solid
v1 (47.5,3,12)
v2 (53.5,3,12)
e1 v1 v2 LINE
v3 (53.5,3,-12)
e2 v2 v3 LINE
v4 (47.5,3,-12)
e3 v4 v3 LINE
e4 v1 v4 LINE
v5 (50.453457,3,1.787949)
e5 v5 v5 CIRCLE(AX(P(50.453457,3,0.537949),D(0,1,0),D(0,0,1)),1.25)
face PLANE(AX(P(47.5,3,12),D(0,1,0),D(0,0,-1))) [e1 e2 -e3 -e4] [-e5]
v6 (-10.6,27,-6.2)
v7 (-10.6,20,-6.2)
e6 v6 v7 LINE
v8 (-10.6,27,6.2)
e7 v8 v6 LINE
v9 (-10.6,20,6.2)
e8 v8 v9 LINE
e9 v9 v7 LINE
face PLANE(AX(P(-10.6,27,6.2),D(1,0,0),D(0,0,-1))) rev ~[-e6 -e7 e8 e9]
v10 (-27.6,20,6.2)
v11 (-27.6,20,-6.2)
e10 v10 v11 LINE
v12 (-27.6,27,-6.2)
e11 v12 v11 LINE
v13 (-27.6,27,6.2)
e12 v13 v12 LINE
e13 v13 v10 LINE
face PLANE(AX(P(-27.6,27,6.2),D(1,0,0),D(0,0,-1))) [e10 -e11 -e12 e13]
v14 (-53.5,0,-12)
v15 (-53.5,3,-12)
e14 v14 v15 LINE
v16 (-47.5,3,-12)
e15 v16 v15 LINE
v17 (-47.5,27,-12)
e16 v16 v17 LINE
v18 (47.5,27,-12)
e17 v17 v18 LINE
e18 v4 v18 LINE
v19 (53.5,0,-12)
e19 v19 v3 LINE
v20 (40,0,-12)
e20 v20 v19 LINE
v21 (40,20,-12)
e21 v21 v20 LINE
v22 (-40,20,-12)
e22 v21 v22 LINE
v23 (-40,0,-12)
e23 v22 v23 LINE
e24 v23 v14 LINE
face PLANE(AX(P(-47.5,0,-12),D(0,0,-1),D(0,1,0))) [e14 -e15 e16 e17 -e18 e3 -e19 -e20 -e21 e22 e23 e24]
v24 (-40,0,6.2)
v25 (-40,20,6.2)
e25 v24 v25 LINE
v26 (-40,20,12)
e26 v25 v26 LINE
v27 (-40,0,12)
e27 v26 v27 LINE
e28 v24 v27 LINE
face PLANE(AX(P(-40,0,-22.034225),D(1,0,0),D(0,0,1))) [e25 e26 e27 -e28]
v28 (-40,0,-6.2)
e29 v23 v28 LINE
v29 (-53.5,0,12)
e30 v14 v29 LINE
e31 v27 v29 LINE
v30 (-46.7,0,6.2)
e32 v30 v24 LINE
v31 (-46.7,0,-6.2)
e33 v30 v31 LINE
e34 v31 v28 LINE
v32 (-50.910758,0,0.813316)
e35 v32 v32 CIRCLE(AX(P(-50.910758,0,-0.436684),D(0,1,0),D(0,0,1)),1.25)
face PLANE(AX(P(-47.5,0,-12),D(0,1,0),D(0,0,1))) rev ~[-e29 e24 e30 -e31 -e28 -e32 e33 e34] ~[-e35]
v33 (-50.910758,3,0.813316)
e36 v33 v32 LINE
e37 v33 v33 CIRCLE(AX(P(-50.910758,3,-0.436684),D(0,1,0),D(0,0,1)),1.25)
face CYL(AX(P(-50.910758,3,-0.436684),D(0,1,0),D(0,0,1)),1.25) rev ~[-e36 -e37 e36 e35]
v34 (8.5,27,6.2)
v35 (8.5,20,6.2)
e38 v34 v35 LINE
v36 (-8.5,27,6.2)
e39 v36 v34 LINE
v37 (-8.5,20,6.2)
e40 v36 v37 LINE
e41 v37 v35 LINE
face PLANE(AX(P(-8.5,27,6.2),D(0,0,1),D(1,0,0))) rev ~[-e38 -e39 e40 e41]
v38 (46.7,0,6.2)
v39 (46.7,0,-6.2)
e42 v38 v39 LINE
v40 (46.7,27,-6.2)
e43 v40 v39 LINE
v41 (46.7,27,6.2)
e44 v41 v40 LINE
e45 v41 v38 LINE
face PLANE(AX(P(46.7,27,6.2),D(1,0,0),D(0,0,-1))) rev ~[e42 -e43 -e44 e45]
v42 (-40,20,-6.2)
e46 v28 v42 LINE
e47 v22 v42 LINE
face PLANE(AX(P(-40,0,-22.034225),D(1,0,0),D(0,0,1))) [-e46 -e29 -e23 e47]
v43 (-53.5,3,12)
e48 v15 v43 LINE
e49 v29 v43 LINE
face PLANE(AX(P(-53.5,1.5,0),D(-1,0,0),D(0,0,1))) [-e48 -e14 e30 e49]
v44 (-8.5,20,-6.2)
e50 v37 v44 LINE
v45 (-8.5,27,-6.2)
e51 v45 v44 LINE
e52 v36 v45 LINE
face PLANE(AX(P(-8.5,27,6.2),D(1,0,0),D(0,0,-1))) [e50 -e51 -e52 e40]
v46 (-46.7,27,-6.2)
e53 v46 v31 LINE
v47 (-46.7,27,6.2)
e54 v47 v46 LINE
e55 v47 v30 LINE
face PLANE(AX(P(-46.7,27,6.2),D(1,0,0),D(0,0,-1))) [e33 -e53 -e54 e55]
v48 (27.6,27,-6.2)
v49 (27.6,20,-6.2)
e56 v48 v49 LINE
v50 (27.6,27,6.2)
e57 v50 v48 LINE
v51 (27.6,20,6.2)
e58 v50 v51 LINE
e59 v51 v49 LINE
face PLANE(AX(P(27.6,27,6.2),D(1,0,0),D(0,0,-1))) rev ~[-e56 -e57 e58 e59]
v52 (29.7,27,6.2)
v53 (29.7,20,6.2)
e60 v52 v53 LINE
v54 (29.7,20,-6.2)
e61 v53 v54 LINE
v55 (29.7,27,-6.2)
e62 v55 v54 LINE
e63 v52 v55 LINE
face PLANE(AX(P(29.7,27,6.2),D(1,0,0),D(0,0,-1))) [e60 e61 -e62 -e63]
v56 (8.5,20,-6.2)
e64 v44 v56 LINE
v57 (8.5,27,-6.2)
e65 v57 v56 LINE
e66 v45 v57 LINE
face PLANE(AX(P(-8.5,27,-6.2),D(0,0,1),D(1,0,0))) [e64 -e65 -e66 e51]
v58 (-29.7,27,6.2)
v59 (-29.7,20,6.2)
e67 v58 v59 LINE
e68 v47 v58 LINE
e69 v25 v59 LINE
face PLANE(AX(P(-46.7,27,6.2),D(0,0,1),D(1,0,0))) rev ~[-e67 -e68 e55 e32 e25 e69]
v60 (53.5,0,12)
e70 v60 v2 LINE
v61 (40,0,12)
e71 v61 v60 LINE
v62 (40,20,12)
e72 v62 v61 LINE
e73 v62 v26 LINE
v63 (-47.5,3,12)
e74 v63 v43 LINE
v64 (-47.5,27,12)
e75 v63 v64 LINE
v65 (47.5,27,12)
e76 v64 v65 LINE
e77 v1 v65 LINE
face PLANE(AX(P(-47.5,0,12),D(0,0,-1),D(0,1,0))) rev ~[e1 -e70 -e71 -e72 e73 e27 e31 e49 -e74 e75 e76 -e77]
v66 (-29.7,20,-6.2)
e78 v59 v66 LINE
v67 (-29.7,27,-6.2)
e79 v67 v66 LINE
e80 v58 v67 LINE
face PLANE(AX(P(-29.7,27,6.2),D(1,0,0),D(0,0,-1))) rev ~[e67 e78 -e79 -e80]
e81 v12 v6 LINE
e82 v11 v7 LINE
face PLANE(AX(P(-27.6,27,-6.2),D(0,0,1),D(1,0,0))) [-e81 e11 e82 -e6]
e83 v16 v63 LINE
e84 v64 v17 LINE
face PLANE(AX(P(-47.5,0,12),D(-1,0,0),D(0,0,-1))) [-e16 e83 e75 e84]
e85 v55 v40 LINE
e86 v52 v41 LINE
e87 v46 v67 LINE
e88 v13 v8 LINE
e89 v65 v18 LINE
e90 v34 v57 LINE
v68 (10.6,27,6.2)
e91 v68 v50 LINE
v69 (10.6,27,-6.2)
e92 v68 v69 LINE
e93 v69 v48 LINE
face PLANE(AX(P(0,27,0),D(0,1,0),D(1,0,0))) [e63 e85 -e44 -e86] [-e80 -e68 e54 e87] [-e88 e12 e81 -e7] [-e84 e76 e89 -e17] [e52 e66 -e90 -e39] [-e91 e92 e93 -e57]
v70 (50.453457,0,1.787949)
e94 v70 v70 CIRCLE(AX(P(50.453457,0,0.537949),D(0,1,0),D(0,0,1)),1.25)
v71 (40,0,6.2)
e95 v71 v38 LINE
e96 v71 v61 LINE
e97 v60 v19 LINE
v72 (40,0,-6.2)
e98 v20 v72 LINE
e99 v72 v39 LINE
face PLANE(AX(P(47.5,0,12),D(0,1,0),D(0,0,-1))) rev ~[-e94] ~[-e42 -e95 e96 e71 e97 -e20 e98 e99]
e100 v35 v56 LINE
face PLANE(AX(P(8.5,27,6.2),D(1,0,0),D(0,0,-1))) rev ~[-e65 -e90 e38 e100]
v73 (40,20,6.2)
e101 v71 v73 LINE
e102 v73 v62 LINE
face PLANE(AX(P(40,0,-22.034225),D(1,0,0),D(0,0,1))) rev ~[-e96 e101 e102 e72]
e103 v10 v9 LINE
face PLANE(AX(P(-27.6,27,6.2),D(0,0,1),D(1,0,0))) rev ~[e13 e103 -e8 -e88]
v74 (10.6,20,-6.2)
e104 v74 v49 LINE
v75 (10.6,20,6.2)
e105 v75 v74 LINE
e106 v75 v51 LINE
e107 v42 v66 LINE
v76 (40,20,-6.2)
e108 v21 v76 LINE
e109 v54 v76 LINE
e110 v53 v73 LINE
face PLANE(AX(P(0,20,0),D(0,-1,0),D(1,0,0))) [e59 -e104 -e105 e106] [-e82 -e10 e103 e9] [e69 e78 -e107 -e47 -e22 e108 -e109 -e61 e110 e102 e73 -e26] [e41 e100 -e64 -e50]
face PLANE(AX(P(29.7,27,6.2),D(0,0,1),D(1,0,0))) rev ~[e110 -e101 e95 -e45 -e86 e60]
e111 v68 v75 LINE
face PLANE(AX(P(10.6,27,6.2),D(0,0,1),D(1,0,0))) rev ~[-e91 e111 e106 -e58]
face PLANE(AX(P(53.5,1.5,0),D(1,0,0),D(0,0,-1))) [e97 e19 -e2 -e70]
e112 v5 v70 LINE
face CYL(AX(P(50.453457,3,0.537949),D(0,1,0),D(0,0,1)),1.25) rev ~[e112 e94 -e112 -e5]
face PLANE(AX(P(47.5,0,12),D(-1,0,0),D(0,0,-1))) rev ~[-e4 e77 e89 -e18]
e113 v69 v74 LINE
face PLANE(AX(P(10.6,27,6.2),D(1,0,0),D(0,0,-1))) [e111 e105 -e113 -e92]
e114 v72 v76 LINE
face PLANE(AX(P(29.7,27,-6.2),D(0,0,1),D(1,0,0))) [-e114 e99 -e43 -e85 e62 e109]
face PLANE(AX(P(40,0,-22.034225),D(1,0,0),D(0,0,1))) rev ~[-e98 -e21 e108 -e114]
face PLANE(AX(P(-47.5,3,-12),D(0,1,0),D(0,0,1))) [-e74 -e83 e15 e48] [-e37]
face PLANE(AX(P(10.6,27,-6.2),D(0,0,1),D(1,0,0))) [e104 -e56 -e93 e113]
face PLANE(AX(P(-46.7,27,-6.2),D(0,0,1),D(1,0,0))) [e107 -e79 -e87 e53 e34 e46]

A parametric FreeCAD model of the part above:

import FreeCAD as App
import Part
import Sketcher

V = App.Vector
Q = App.Units.Quantity


def add_polygon(sketch, points):
    """Adds a closed chain of lines whose ends are joined by coincident constraints."""
    first, n = sketch.GeometryCount, len(points)
    for a, b in zip(points, points[1:] + points[:1]):
        sketch.addGeometry(Part.LineSegment(App.Vector(*a, 0), App.Vector(*b, 0)), False)
    for i in range(n):
        sketch.addConstraint(Sketcher.Constraint("Coincident", first + i, 2, first + (i + 1) % n, 1))

doc = App.newDocument("Part")
body = doc.addObject("PartDesign::Body", "Body")

sketch1 = doc.addObject("Sketcher::SketchObject", "Sketch")
body.addObject(sketch1)
sketch1.AttachmentSupport = (doc.XZ_Plane, [""])
sketch1.MapMode = "FlatFace"
add_polygon(sketch1, [(-48, -12), (-48, 12), (48, 12), (48, -12)])
sketch1.addConstraint(Sketcher.Constraint("Vertical", 0))
sketch1.addConstraint(Sketcher.Constraint("Horizontal", 1))
sketch1.addConstraint(Sketcher.Constraint("Vertical", 2))
sketch1.addConstraint(Sketcher.Constraint("Horizontal", 3))
sketch1.addConstraint(Sketcher.Constraint("Symmetric", 0, 2, 2, 2, -1, 1))
sketch1.addConstraint(Sketcher.Constraint("DistanceX", 1, 1, 1, 2, Q("95 mm")))
sketch1.addConstraint(Sketcher.Constraint("DistanceY", 0, 1, 0, 2, Q("24 mm")))
pad1 = doc.addObject("PartDesign::Pad", "Pad")
body.addObject(pad1)
pad1.Profile = sketch1
pad1.Length = 27
pad1.Reversed = True

sketch2 = doc.addObject("Sketcher::SketchObject", "Sketch001")
body.addObject(sketch2)
sketch2.AttachmentSupport = (doc.XZ_Plane, [""])
sketch2.MapMode = "FlatFace"
sketch2.AttachmentOffset = App.Placement(V(0, 0, -27), App.Rotation())
add_polygon(sketch2, [(11, -6), (11, 6), (28, 6), (28, -6)])
add_polygon(sketch2, [(-8, -6), (-8, 6), (8, 6), (8, -6)])
add_polygon(sketch2, [(-28, -6), (-28, 6), (-11, 6), (-11, -6)])
add_polygon(sketch2, [(-47, -6), (-47, 6), (-30, 6), (-30, -6)])
add_polygon(sketch2, [(30, -6), (30, 6), (47, 6), (47, -6)])
sketch2.addConstraint(Sketcher.Constraint("Vertical", 0))
sketch2.addConstraint(Sketcher.Constraint("Horizontal", 1))
sketch2.addConstraint(Sketcher.Constraint("Vertical", 2))
sketch2.addConstraint(Sketcher.Constraint("Horizontal", 3))
sketch2.addConstraint(Sketcher.Constraint("Vertical", 4))
sketch2.addConstraint(Sketcher.Constraint("Horizontal", 5))
sketch2.addConstraint(Sketcher.Constraint("Vertical", 6))
sketch2.addConstraint(Sketcher.Constraint("Horizontal", 7))
sketch2.addConstraint(Sketcher.Constraint("Vertical", 8))
sketch2.addConstraint(Sketcher.Constraint("Horizontal", 9))
sketch2.addConstraint(Sketcher.Constraint("Vertical", 10))
sketch2.addConstraint(Sketcher.Constraint("Horizontal", 11))
sketch2.addConstraint(Sketcher.Constraint("Vertical", 12))
sketch2.addConstraint(Sketcher.Constraint("Horizontal", 13))
sketch2.addConstraint(Sketcher.Constraint("Vertical", 14))
sketch2.addConstraint(Sketcher.Constraint("Horizontal", 15))
sketch2.addConstraint(Sketcher.Constraint("Vertical", 16))
sketch2.addConstraint(Sketcher.Constraint("Horizontal", 17))
sketch2.addConstraint(Sketcher.Constraint("Vertical", 18))
sketch2.addConstraint(Sketcher.Constraint("Horizontal", 19))
sketch2.addConstraint(Sketcher.Constraint("Symmetric", 4, 2, 6, 2, -1, 1))
sketch2.addConstraint(Sketcher.Constraint("Symmetric", 2, 2, 8, 2, -1, 1))
sketch2.addConstraint(Sketcher.Constraint("Symmetric", 0, 2, 10, 2, -1, 1))
sketch2.addConstraint(Sketcher.Constraint("Symmetric", 14, 2, 16, 2, -1, 1))
sketch2.addConstraint(Sketcher.Constraint("Symmetric", 12, 2, 18, 2, -1, 1))
sketch2.addConstraint(Sketcher.Constraint("Horizontal", 1, 2, 4, 2))
sketch2.addConstraint(Sketcher.Constraint("Horizontal", 3, 2, 6, 2))
sketch2.addConstraint(Sketcher.Constraint("Horizontal", 9, 2, 12, 2))
sketch2.addConstraint(Sketcher.Constraint("Horizontal", 11, 2, 14, 2))
sketch2.addConstraint(Sketcher.Constraint("Equal", 3, 5))
sketch2.addConstraint(Sketcher.Constraint("Equal", 11, 13))
sketch2.addConstraint(Sketcher.Constraint("DistanceX", 1, 1, 1, 2, Q("17 mm")))
sketch2.addConstraint(Sketcher.Constraint("DistanceY", 0, 1, 0, 2, Q("12.4 mm")))
sketch2.addConstraint(Sketcher.Constraint("DistanceX", -1, 1, 0, 2, Q("10.6 mm")))
sketch2.addConstraint(Sketcher.Constraint("DistanceX", 12, 2, -1, 1, Q("46.7 mm")))
pocket1 = doc.addObject("PartDesign::Pocket", "Pocket")
body.addObject(pocket1)
pocket1.Profile = sketch2
pocket1.Type = "ThroughAll"
pocket1.Reversed = True

sketch3 = doc.addObject("Sketcher::SketchObject", "Sketch002")
body.addObject(sketch3)
sketch3.AttachmentSupport = (doc.XZ_Plane, [""])
sketch3.MapMode = "FlatFace"
add_polygon(sketch3, [(-40, 22), (-40, -22), (40, -22), (40, 22)])
sketch3.addConstraint(Sketcher.Constraint("Vertical", 0))
sketch3.addConstraint(Sketcher.Constraint("Horizontal", 1))
sketch3.addConstraint(Sketcher.Constraint("Vertical", 2))
sketch3.addConstraint(Sketcher.Constraint("Horizontal", 3))
sketch3.addConstraint(Sketcher.Constraint("Symmetric", 0, 2, 2, 2, -1, 1))
sketch3.addConstraint(Sketcher.Constraint("DistanceX", 1, 1, 1, 2, Q("80 mm")))
sketch3.addConstraint(Sketcher.Constraint("DistanceY", 0, 2, 0, 1, Q("44.06845 mm")))
pocket2 = doc.addObject("PartDesign::Pocket", "Pocket001")
body.addObject(pocket2)
pocket2.Profile = sketch3
pocket2.Length = 20

sketch4 = doc.addObject("Sketcher::SketchObject", "Sketch003")
body.addObject(sketch4)
sketch4.AttachmentSupport = (doc.YZ_Plane, [""])
sketch4.MapMode = "FlatFace"
sketch4.AttachmentOffset = App.Placement(V(0, 0, 47.5), App.Rotation())
add_polygon(sketch4, [(3, 12), (0, 12), (0, -12), (3, -12)])
sketch4.addConstraint(Sketcher.Constraint("Horizontal", 0))
sketch4.addConstraint(Sketcher.Constraint("Vertical", 1))
sketch4.addConstraint(Sketcher.Constraint("Horizontal", 2))
sketch4.addConstraint(Sketcher.Constraint("Vertical", 3))
sketch4.addConstraint(Sketcher.Constraint("Symmetric", 0, 2, 1, 2, -1, 1))
sketch4.addConstraint(Sketcher.Constraint("DistanceX", 0, 2, 0, 1, Q("3 mm")))
sketch4.addConstraint(Sketcher.Constraint("DistanceY", 1, 2, 1, 1, Q("24 mm")))
pad2 = doc.addObject("PartDesign::Pad", "Pad001")
body.addObject(pad2)
pad2.Profile = sketch4
pad2.Length = 6

sketch5 = doc.addObject("Sketcher::SketchObject", "Sketch004")
body.addObject(sketch5)
sketch5.AttachmentSupport = (doc.YZ_Plane, [""])
sketch5.MapMode = "FlatFace"
sketch5.AttachmentOffset = App.Placement(V(0, 0, -47.5), App.Rotation())
add_polygon(sketch5, [(3, -12), (0, -12), (0, 12), (3, 12)])
sketch5.addConstraint(Sketcher.Constraint("Horizontal", 0))
sketch5.addConstraint(Sketcher.Constraint("Vertical", 1))
sketch5.addConstraint(Sketcher.Constraint("Horizontal", 2))
sketch5.addConstraint(Sketcher.Constraint("Vertical", 3))
sketch5.addConstraint(Sketcher.Constraint("Symmetric", 0, 2, 1, 2, -1, 1))
sketch5.addConstraint(Sketcher.Constraint("DistanceX", 0, 2, 0, 1, Q("3 mm")))
sketch5.addConstraint(Sketcher.Constraint("DistanceY", 1, 1, 1, 2, Q("24 mm")))
pad3 = doc.addObject("PartDesign::Pad", "Pad002")
body.addObject(pad3)
pad3.Profile = sketch5
pad3.Length = 6
pad3.Reversed = True

sketch6 = doc.addObject("Sketcher::SketchObject", "Sketch005")
body.addObject(sketch6)
sketch6.AttachmentSupport = (doc.XZ_Plane, [""])
sketch6.MapMode = "FlatFace"
sketch6.AttachmentOffset = App.Placement(V(0, 0, -3), App.Rotation())
sketch6.addGeometry(Part.Circle(V(50.5, 0.5, 0), V(0, 0, 1), 1.2), False)
sketch6.addConstraint(Sketcher.Constraint("Diameter", 0, Q("2.5 mm")))
sketch6.addConstraint(Sketcher.Constraint("DistanceY", -1, 1, 0, 3, Q("0.537949 mm")))
sketch6.addConstraint(Sketcher.Constraint("DistanceX", -1, 1, 0, 3, Q("50.453457 mm")))
pocket3 = doc.addObject("PartDesign::Pocket", "Pocket002")
body.addObject(pocket3)
pocket3.Profile = sketch6
pocket3.Type = "ThroughAll"
pocket3.Reversed = True

sketch7 = doc.addObject("Sketcher::SketchObject", "Sketch006")
body.addObject(sketch7)
sketch7.AttachmentSupport = (doc.XZ_Plane, [""])
sketch7.MapMode = "FlatFace"
sketch7.AttachmentOffset = App.Placement(V(0, 0, -3), App.Rotation())
sketch7.addGeometry(Part.Circle(V(-50.9, -0.4, 0), V(0, 0, 1), 1.2), False)
sketch7.addConstraint(Sketcher.Constraint("Diameter", 0, Q("2.5 mm")))
sketch7.addConstraint(Sketcher.Constraint("DistanceX", 0, 3, -1, 1, Q("50.910758 mm")))
sketch7.addConstraint(Sketcher.Constraint("DistanceY", 0, 3, -1, 1, Q("0.436684 mm")))
pocket4 = doc.addObject("PartDesign::Pocket", "Pocket003")
body.addObject(pocket4)
pocket4.Profile = sketch7
pocket4.Type = "ThroughAll"
pocket4.Reversed = True

doc.recompute()
